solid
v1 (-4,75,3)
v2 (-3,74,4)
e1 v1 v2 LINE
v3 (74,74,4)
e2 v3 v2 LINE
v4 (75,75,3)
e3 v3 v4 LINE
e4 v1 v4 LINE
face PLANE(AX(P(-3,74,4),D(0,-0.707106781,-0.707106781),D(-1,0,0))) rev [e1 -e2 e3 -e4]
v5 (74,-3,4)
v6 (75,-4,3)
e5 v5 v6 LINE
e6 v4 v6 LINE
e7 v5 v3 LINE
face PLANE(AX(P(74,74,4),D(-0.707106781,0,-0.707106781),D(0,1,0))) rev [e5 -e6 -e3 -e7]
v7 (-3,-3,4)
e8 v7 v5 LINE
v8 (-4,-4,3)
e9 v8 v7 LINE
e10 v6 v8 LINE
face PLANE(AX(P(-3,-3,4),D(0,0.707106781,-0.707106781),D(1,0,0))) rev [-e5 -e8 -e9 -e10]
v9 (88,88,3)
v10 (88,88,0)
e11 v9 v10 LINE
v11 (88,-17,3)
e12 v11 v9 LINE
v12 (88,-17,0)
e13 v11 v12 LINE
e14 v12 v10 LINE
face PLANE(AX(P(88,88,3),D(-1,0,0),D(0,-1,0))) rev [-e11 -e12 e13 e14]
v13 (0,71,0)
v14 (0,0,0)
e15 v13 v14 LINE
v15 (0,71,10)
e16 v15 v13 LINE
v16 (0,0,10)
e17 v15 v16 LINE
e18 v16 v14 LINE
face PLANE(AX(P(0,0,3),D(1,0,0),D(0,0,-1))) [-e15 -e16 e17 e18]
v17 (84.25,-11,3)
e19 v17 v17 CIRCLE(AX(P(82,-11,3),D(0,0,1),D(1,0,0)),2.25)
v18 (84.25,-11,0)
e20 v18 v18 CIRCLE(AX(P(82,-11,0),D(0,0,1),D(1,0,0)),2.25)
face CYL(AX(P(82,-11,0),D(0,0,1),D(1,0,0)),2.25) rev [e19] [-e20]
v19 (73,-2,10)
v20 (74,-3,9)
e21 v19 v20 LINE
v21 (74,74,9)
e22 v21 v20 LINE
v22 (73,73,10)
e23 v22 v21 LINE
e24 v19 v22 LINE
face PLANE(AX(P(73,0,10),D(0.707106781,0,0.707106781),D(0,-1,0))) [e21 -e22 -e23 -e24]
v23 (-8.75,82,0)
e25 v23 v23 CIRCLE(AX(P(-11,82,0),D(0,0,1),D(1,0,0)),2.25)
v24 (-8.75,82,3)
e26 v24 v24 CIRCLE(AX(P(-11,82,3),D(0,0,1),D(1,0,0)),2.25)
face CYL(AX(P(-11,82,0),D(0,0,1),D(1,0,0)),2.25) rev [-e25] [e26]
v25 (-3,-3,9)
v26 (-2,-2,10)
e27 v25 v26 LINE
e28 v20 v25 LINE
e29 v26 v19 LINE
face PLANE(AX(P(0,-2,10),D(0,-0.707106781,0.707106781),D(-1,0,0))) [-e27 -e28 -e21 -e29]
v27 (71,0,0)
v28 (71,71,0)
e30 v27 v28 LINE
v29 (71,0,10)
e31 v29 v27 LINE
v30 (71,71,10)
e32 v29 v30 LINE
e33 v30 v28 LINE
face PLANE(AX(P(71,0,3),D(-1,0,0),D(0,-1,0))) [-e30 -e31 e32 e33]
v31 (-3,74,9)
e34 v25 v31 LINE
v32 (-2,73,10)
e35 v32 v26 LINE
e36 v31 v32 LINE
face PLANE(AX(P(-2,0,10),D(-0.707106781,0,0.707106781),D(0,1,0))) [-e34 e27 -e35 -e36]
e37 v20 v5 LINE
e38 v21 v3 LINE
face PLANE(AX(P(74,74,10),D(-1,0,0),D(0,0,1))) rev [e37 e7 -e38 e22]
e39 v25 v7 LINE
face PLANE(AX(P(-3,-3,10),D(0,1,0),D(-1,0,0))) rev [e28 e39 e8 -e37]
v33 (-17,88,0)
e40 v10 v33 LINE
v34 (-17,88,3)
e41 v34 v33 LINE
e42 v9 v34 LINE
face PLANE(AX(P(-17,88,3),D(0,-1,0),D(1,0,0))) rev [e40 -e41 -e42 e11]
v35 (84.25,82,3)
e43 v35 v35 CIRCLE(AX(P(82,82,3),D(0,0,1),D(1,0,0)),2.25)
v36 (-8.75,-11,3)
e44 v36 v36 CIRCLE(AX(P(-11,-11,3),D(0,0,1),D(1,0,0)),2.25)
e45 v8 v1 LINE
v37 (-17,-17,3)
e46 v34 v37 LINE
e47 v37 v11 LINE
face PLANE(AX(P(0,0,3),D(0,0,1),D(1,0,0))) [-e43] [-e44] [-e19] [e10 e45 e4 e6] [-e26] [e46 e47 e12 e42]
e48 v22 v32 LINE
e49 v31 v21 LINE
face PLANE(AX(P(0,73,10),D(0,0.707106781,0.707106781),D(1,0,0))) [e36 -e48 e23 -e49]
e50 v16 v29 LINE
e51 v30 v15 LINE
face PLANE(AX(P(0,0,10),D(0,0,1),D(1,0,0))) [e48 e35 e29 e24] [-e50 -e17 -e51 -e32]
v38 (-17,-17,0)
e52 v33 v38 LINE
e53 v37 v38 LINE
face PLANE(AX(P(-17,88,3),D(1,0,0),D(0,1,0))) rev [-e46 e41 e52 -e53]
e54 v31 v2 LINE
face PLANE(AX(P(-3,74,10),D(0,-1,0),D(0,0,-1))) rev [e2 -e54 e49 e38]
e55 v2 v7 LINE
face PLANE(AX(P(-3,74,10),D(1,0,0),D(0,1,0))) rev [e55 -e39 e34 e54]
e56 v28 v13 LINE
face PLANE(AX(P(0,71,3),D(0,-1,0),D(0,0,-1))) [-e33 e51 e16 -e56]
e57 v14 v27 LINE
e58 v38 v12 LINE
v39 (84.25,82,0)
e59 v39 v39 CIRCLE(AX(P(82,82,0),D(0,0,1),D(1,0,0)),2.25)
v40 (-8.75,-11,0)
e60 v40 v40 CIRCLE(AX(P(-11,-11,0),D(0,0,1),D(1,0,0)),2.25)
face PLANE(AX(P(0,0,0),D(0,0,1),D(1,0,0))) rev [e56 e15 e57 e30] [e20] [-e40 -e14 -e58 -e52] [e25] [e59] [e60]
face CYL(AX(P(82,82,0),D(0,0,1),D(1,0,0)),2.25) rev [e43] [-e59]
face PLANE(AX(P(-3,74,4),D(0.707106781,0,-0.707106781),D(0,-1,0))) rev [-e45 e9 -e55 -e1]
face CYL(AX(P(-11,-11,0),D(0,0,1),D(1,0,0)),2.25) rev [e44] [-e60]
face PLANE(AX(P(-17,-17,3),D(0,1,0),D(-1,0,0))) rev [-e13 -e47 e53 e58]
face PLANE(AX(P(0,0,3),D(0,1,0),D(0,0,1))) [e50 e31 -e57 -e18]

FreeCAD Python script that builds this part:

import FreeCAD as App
import Part
import Sketcher


def edges_at(feature, points):
    """Names of the edges that pass closest to the given points."""
    edges = feature.Shape.Edges
    near = lambda p: min(range(len(edges)), key=lambda i: edges[i].distToShape(Part.Vertex(*p))[0])
    return sorted({f"Edge{near(p) + 1}" for p in points})


def add_polygon(sketch, points):
    """Adds a closed chain of lines whose ends are joined by coincident constraints."""
    first, n = sketch.GeometryCount, len(points)
    for a, b in zip(points, points[1:] + points[:1]):
        sketch.addGeometry(Part.LineSegment(App.Vector(*a, 0), App.Vector(*b, 0)), False)
    for i in range(n):
        sketch.addConstraint(Sketcher.Constraint("Coincident", first + i, 2, first + (i + 1) % n, 1))

doc = App.newDocument("Part")
body = doc.addObject("PartDesign::Body", "Body")

sketch1 = body.newObject("Sketcher::SketchObject", "Sketch")
sketch1.AttachmentSupport = (doc.getObject("XY_Plane"), [""])
sketch1.MapMode = "FlatFace"
add_polygon(sketch1, [(-17, 88), (-17, -17), (88, -17), (88, 88)])
add_polygon(sketch1, [(71, 0), (0, 0), (0, 71), (71, 71)])
sketch1.addConstraint(Sketcher.Constraint("Vertical", 0))
sketch1.addConstraint(Sketcher.Constraint("Horizontal", 1))
sketch1.addConstraint(Sketcher.Constraint("Vertical", 2))
sketch1.addConstraint(Sketcher.Constraint("Horizontal", 3))
sketch1.addConstraint(Sketcher.Constraint("Horizontal", 4))
sketch1.addConstraint(Sketcher.Constraint("Vertical", 5))
sketch1.addConstraint(Sketcher.Constraint("Horizontal", 6))
sketch1.addConstraint(Sketcher.Constraint("Vertical", 7))
sketch1.addConstraint(Sketcher.Constraint("Coincident", 4, 2, -1, 1))
sketch1.addConstraint(Sketcher.Constraint("Equal", 3, 0))
sketch1.addConstraint(Sketcher.Constraint("Equal", 6, 5))
sketch1.addConstraint(Sketcher.Constraint("DistanceX", 1, 1, 1, 2, 105.0))
sketch1.addConstraint(Sketcher.Constraint("DistanceX", 4, 2, 4, 1, 71.0))
sketch1.addConstraint(Sketcher.Constraint("DistanceX", 0, 2, -1, 1, 17.0))
sketch1.addConstraint(Sketcher.Constraint("DistanceY", 0, 2, -1, 1, 17.0))
pad1 = body.newObject("PartDesign::Pad", "Pad")
pad1.Profile = sketch1
pad1.Length = 3

sketch2 = body.newObject("Sketcher::SketchObject", "Sketch001")
sketch2.AttachmentSupport = (doc.getObject("XY_Plane"), [""])
sketch2.MapMode = "FlatFace"
sketch2.AttachmentOffset = App.Placement(App.Vector(0, 0, 3), App.Rotation())
add_polygon(sketch2, [(-3, 74), (-3, -3), (74, -3), (74, 74)])
add_polygon(sketch2, [(71, 0), (0, 0), (0, 71), (71, 71)])
sketch2.addConstraint(Sketcher.Constraint("Vertical", 0))
sketch2.addConstraint(Sketcher.Constraint("Horizontal", 1))
sketch2.addConstraint(Sketcher.Constraint("Vertical", 2))
sketch2.addConstraint(Sketcher.Constraint("Horizontal", 3))
sketch2.addConstraint(Sketcher.Constraint("Horizontal", 4))
sketch2.addConstraint(Sketcher.Constraint("Vertical", 5))
sketch2.addConstraint(Sketcher.Constraint("Horizontal", 6))
sketch2.addConstraint(Sketcher.Constraint("Vertical", 7))
sketch2.addConstraint(Sketcher.Constraint("Coincident", 4, 2, -1, 1))
sketch2.addConstraint(Sketcher.Constraint("Equal", 3, 0))
sketch2.addConstraint(Sketcher.Constraint("Equal", 6, 5))
sketch2.addConstraint(Sketcher.Constraint("DistanceX", 1, 1, 1, 2, 77.0))
sketch2.addConstraint(Sketcher.Constraint("DistanceX", 4, 2, 4, 1, 71.0))
sketch2.addConstraint(Sketcher.Constraint("DistanceX", 0, 2, -1, 1, 3.0))
sketch2.addConstraint(Sketcher.Constraint("DistanceY", 0, 2, -1, 1, 3.0))
pad2 = body.newObject("PartDesign::Pad", "Pad001")
pad2.Profile = sketch2
pad2.Length = 7
doc.recompute()

chamfer = body.newObject("PartDesign::Chamfer", "Chamfer")
chamfer.Base = (pad2, edges_at(pad2, [
    (-3, 35.5, 10),
    (35.5, -3, 10),
    (74, 35.5, 10),
    (35.5, 74, 10),
    (-3, 35.5, 3),
    (35.5, -3, 3),
    (74, 35.5, 3),
    (35.5, 74, 3),
]))
chamfer.Size = 1

sketch3 = body.newObject("Sketcher::SketchObject", "Sketch002")
sketch3.AttachmentSupport = (doc.getObject("XY_Plane"), [""])
sketch3.MapMode = "FlatFace"
sketch3.AttachmentOffset = App.Placement(App.Vector(0, 0, 3), App.Rotation())
sketch3.addGeometry(Part.Circle(App.Vector(-11, 82, 0), App.Vector(0, 0, 1), 2.2), False)
sketch3.addGeometry(Part.Circle(App.Vector(82, 82, 0), App.Vector(0, 0, 1), 2.2), False)
sketch3.addGeometry(Part.Circle(App.Vector(82, -11, 0), App.Vector(0, 0, 1), 2.2), False)
sketch3.addGeometry(Part.Circle(App.Vector(-11, -11, 0), App.Vector(0, 0, 1), 2.2), False)
sketch3.addConstraint(Sketcher.Constraint("Equal", 0, 1))
sketch3.addConstraint(Sketcher.Constraint("Equal", 1, 2))
sketch3.addConstraint(Sketcher.Constraint("Equal", 2, 3))
sketch3.addConstraint(Sketcher.Constraint("Horizontal", 0, 3, 1, 3))
sketch3.addConstraint(Sketcher.Constraint("Horizontal", 2, 3, 3, 3))
sketch3.addConstraint(Sketcher.Constraint("Vertical", 1, 3, 2, 3))
sketch3.addConstraint(Sketcher.Constraint("Vertical", 0, 3, 3, 3))
sketch3.addConstraint(Sketcher.Constraint("Diameter", 0, 4.5))
sketch3.addConstraint(Sketcher.Constraint("DistanceX", 0, 3, -1, 1, 11.0))
sketch3.addConstraint(Sketcher.Constraint("DistanceY", -1, 1, 0, 3, 82.0))
sketch3.addConstraint(Sketcher.Constraint("DistanceX", -1, 1, 1, 3, 82.0))
sketch3.addConstraint(Sketcher.Constraint("DistanceY", 2, 3, -1, 1, 11.0))
pocket1 = body.newObject("PartDesign::Pocket", "Pocket")
pocket1.Profile = sketch3
pocket1.Type = "ThroughAll"

doc.recompute()
